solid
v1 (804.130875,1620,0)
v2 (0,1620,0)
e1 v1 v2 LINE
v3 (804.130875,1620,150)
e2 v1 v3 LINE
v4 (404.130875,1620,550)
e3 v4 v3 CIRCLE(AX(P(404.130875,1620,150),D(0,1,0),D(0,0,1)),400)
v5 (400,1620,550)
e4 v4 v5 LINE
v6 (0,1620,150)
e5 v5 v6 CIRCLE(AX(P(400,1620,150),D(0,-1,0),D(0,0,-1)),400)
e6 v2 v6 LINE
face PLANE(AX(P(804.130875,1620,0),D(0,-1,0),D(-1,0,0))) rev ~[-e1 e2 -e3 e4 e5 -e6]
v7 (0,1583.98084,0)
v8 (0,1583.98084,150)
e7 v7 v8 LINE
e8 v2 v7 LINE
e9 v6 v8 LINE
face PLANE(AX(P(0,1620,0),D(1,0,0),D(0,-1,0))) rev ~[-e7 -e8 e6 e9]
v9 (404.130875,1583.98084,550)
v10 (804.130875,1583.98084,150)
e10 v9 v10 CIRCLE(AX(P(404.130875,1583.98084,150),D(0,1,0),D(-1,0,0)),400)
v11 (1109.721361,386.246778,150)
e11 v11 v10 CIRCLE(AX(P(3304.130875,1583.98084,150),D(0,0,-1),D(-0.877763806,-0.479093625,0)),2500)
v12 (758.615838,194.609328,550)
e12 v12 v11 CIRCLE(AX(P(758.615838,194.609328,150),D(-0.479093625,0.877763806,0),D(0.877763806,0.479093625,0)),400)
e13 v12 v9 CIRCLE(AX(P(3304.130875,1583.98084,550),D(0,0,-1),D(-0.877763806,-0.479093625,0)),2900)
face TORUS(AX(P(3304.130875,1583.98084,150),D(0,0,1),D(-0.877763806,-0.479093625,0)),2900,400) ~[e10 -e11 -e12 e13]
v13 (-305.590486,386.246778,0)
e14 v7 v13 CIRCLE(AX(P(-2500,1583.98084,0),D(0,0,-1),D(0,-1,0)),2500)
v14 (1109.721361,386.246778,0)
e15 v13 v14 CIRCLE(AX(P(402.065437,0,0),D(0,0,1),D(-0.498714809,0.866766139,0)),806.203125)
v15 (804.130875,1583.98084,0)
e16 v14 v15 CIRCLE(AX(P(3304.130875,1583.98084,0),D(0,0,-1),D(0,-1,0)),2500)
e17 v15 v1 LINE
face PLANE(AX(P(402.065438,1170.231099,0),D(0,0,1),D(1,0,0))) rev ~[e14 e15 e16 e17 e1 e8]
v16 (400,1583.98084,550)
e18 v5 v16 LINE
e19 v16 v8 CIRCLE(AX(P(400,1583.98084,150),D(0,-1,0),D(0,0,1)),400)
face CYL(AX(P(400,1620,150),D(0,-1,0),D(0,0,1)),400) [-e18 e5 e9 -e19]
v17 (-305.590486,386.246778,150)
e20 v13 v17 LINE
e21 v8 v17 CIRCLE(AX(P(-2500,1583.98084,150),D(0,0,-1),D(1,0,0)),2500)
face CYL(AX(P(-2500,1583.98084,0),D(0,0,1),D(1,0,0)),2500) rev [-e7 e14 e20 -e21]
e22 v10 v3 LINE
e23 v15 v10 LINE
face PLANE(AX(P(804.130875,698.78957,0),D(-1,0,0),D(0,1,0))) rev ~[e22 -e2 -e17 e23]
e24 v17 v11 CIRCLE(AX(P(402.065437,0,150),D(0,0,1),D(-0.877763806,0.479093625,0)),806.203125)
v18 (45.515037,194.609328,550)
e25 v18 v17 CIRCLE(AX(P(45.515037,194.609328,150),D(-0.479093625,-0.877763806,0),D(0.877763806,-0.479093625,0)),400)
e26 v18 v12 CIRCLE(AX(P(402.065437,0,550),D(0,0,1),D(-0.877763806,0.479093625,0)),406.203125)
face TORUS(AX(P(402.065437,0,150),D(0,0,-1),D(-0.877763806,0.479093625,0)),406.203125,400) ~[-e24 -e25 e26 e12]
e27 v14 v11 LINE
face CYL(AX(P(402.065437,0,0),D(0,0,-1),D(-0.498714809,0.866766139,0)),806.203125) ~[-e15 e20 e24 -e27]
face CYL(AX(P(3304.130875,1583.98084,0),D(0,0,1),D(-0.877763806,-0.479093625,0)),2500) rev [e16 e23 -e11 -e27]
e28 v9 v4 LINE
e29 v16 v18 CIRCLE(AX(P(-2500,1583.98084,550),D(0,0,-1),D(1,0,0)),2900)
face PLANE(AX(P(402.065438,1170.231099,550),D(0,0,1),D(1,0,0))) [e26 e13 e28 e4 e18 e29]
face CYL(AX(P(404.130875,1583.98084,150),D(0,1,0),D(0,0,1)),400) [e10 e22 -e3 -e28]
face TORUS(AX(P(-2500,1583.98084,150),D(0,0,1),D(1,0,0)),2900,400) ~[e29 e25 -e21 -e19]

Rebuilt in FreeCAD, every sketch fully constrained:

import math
import FreeCAD as App
import Part
import Sketcher

V = App.Vector


def edges_at(feature, points):
    """Names of the edges that pass closest to the given points."""
    edges = feature.Shape.Edges
    near = lambda p: min(range(len(edges)), key=lambda i: edges[i].distToShape(Part.Vertex(*p))[0])
    return sorted({f"Edge{near(p) + 1}" for p in points})

doc = App.newDocument("Part")
body = doc.addObject("PartDesign::Body", "Body")

# Sketch on XY plane
sketch1 = body.newObject("Sketcher::SketchObject", "Sketch")
sketch1.AttachmentSupport = (doc.getObject("XY_Plane"), [""])
sketch1.MapMode = "FlatFace"
sketch1.addGeometry([
    Part.LineSegment(V(0, 1620, 0), V(0, 698.78957, 0)),
    Part.ArcOfCircle(Part.Circle(V(402.065437, 0, 0), V(0, 0, 1), 806.203125), math.radians(119.915009), math.radians(420.084991)),
    Part.LineSegment(V(804.130875, 698.78957, 0), V(804.130875, 1620, 0)),
    Part.LineSegment(V(804.130875, 1620, 0), V(0, 1620, 0)),
], False)
sketch1.addConstraint([
    Sketcher.Constraint("Coincident", 0, 2, 1, 1),
    Sketcher.Constraint("Coincident", 1, 2, 2, 1),
    Sketcher.Constraint("Coincident", 2, 2, 3, 1),
    Sketcher.Constraint("Coincident", 3, 2, 0, 1),
    Sketcher.Constraint("Vertical", 0),
    Sketcher.Constraint("Vertical", 2),
    Sketcher.Constraint("Horizontal", 3),
    Sketcher.Constraint("PointOnObject", 1, 3, -1),
    Sketcher.Constraint("PointOnObject", 0, 2, -2),
    Sketcher.Constraint("Horizontal", 0, 2, 1, 2),
    Sketcher.Constraint("DistanceY", -1, 1, 2, 2, 1620.0),
    Sketcher.Constraint("Radius", 1, 806.203125),
    Sketcher.Constraint("DistanceY", 0, 2, 0, 1, 921.21043),
])
pad1 = body.newObject("PartDesign::Pad", "Pad")
pad1.Profile = sketch1
pad1.Length = 550
doc.recompute()

fillet = body.newObject("PartDesign::Fillet", "Fillet")
fillet.Base = (pad1, edges_at(pad1, [(0, 698.79, 275), (804.131, 698.79, 275)]))
fillet.Radius = 2500
doc.recompute()

fillet2 = body.newObject("PartDesign::Fillet", "Fillet001")
fillet2.Base = (fillet, edges_at(fillet, [(881.733, 965.929, 550), (402.065, -806.203, 550), (-77.602, 965.929, 550)]))
fillet2.Radius = 400

doc.recompute()
